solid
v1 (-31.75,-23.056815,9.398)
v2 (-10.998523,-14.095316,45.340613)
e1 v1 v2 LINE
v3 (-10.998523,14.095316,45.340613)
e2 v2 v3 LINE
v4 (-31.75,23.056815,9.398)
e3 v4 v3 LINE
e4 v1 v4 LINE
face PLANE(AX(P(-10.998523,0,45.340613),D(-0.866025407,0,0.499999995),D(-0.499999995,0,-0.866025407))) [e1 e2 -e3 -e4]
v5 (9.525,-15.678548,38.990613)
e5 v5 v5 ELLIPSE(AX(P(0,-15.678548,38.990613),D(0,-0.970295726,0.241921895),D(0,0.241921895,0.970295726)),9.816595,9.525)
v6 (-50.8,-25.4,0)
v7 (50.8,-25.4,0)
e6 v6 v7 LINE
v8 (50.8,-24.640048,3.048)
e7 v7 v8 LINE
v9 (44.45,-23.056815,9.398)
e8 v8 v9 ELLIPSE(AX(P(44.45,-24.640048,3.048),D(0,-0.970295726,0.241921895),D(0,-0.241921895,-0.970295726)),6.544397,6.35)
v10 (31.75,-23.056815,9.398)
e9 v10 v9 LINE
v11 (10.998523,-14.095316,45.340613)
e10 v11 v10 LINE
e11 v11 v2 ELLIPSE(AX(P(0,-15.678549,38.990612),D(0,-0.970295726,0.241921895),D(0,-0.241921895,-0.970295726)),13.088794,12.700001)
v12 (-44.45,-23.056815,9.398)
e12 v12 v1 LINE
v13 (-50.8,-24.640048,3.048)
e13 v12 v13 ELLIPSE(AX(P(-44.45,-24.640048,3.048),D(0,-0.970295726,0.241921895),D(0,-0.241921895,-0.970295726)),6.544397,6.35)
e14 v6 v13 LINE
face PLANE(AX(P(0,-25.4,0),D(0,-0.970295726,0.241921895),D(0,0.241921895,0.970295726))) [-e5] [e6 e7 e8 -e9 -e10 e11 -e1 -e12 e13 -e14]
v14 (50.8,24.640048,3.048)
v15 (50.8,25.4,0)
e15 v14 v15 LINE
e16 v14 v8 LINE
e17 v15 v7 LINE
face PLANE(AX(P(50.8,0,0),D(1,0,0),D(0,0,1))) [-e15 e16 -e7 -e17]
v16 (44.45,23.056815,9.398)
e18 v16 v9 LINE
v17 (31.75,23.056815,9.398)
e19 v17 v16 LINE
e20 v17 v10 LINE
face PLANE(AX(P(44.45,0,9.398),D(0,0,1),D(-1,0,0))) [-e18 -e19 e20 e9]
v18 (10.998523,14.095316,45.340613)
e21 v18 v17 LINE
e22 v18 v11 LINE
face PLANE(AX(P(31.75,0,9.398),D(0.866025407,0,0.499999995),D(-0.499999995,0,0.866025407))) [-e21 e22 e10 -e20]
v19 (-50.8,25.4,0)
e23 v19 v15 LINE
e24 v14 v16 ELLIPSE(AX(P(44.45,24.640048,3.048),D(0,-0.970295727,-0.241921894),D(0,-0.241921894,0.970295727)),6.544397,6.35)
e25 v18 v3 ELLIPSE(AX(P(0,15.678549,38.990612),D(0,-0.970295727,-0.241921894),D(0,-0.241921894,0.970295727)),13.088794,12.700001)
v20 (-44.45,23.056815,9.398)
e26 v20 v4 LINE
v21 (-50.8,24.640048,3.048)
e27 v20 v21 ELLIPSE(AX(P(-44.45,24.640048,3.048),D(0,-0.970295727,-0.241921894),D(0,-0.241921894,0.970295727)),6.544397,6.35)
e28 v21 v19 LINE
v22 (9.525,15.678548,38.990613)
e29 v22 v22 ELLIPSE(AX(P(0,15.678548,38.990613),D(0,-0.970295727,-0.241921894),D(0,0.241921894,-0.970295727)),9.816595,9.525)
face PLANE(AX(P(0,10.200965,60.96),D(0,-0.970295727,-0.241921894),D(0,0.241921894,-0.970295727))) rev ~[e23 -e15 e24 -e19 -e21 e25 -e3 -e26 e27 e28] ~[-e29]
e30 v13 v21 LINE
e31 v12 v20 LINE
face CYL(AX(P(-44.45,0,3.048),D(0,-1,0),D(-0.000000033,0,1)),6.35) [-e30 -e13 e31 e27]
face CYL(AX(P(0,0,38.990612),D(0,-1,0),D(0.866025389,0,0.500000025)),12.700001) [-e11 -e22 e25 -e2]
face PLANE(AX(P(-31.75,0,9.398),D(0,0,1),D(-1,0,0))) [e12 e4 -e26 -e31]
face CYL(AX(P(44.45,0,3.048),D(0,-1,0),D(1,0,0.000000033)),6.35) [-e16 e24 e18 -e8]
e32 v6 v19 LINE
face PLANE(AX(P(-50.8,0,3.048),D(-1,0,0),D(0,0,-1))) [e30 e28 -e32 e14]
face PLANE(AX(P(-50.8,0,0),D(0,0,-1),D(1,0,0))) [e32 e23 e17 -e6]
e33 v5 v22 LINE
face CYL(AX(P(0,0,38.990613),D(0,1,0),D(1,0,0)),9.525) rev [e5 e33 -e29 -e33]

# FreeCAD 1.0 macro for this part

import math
import FreeCAD as App
import Part
import Sketcher
Q = App.Units.Quantity

doc = App.newDocument("Part")
body = doc.addObject("PartDesign::Body", "Body")

sketch1 = body.newObject("Sketcher::SketchObject", "Sketch")
sketch1.AttachmentSupport = (doc.getObject("XZ_Plane"), [""])
sketch1.MapMode = "FlatFace"
sketch1.addGeometry([
    Part.LineSegment(App.Vector(-50.8, 0, 0), App.Vector(50.8, 0, 0)),
    Part.LineSegment(App.Vector(50.8, 0, 0), App.Vector(50.8, 3, 0)),
    Part.ArcOfCircle(Part.Circle(App.Vector(44.4, 3, 0), App.Vector(0, 0, 1), 6.4), math.radians(0), math.radians(90)),
    Part.LineSegment(App.Vector(44.5, 9.4, 0), App.Vector(31.8, 9.4, 0)),
    Part.LineSegment(App.Vector(31.8, 9.4, 0), App.Vector(11, 45.3, 0)),
    Part.ArcOfCircle(Part.Circle(App.Vector(0, 39, 0), App.Vector(0, 0, 1), 12.7), math.radians(30), math.radians(150)),
    Part.LineSegment(App.Vector(-11, 45.3, 0), App.Vector(-31.8, 9.4, 0)),
    Part.LineSegment(App.Vector(-31.8, 9.4, 0), App.Vector(-44.5, 9.4, 0)),
    Part.ArcOfCircle(Part.Circle(App.Vector(-44.4, 3, 0), App.Vector(0, 0, 1), 6.4), math.radians(90), math.radians(180)),
    Part.LineSegment(App.Vector(-50.8, 3, 0), App.Vector(-50.8, 0, 0)),
    Part.Circle(App.Vector(0, 39, 0), App.Vector(0, 0, 1), 9.5),
], False)
sketch1.addConstraint([
    Sketcher.Constraint("Coincident", 0, 2, 1, 1),
    Sketcher.Constraint("Tangent", 1, 2, 2, 1),
    Sketcher.Constraint("Tangent", 2, 2, 3, 1),
    Sketcher.Constraint("Coincident", 3, 2, 4, 1),
    Sketcher.Constraint("Tangent", 4, 2, 5, 1),
    Sketcher.Constraint("Tangent", 5, 2, 6, 1),
    Sketcher.Constraint("Coincident", 6, 2, 7, 1),
    Sketcher.Constraint("Tangent", 7, 2, 8, 1),
    Sketcher.Constraint("Tangent", 8, 2, 9, 1),
    Sketcher.Constraint("Coincident", 9, 2, 0, 1),
    Sketcher.Constraint("Horizontal", 0),
    Sketcher.Constraint("Vertical", 1),
    Sketcher.Constraint("Horizontal", 3),
    Sketcher.Constraint("Horizontal", 7),
    Sketcher.Constraint("Vertical", 9),
    Sketcher.Constraint("Coincident", 10, 3, 5, 3),
    Sketcher.Constraint("Equal", 2, 8),
    Sketcher.Constraint("Symmetric", 0, 2, 9, 2, -1, 1),
    Sketcher.Constraint("Symmetric", 4, 2, 5, 2, -2),
    Sketcher.Constraint("Horizontal", 2, 3, 8, 3),
    Sketcher.Constraint("Radius", 5, Q("0.5 in")),
    Sketcher.Constraint("Diameter", 10, Q("0.75 in")),
    Sketcher.Constraint("DistanceX", 0, 1, 0, 2, Q("4 in")),
    Sketcher.Constraint("Radius", 2, Q("0.25 in")),
    Sketcher.Constraint("DistanceX", 3, 2, 3, 1, Q("0.5 in")),
    Sketcher.Constraint("Angle", 4, Q("120 deg")),
    Sketcher.Constraint("DistanceY", 1, 1, 1, 2, Q("0.12 in")),
])
pad1 = body.newObject("PartDesign::Pad", "Pad")
pad1.Profile = sketch1
pad1.Length = Q("2 in")
pad1.Midplane = True

sketch2 = body.newObject("Sketcher::SketchObject", "Sketch001")
sketch2.AttachmentSupport = (doc.getObject("YZ_Plane"), [""])
sketch2.MapMode = "FlatFace"
sketch2.addGeometry([
    Part.LineSegment(App.Vector(-25, 0, 0), App.Vector(-10, 61, 0)),
    Part.LineSegment(App.Vector(-10, 61, 0), App.Vector(-33, 61, 0)),
    Part.LineSegment(App.Vector(-33, 61, 0), App.Vector(-33, -31, 0)),
    Part.LineSegment(App.Vector(-33, -31, 0), App.Vector(-25, 0, 0)),
    Part.LineSegment(App.Vector(10, 61, 0), App.Vector(33, -31, 0)),
    Part.LineSegment(App.Vector(33, -31, 0), App.Vector(33, 61, 0)),
    Part.LineSegment(App.Vector(33, 61, 0), App.Vector(10, 61, 0)),
], False)
sketch2.addConstraint([
    Sketcher.Constraint("Coincident", 0, 2, 1, 1),
    Sketcher.Constraint("Coincident", 1, 2, 2, 1),
    Sketcher.Constraint("Coincident", 2, 2, 3, 1),
    Sketcher.Constraint("Coincident", 3, 2, 0, 1),
    Sketcher.Constraint("Coincident", 4, 2, 5, 1),
    Sketcher.Constraint("Coincident", 5, 2, 6, 1),
    Sketcher.Constraint("Coincident", 6, 2, 4, 1),
    Sketcher.Constraint("Horizontal", 1),
    Sketcher.Constraint("Vertical", 2),
    Sketcher.Constraint("Vertical", 5),
    Sketcher.Constraint("Horizontal", 6),
    Sketcher.Constraint("Symmetric", 2, 2, 4, 2, -2),
    Sketcher.Constraint("Symmetric", 0, 2, 6, 2, -2),
    Sketcher.Constraint("PointOnObject", 3, 2, -1),
    Sketcher.Constraint("Parallel", 0, 3),
    Sketcher.Constraint("DistanceX", 3, 2, -1, 1, Q("1 in")),
    Sketcher.Constraint("Angle", 0, Q("76 deg")),
    Sketcher.Constraint("DistanceY", -1, 1, 0, 2, Q("2.4 in")),
    Sketcher.Constraint("DistanceX", 1, 2, -1, 1, Q("1.3 in")),
])
pocket1 = body.newObject("PartDesign::Pocket", "Pocket")
pocket1.Profile = sketch2
pocket1.Length = Q("4 in")
pocket1.Midplane = True

doc.recompute()
